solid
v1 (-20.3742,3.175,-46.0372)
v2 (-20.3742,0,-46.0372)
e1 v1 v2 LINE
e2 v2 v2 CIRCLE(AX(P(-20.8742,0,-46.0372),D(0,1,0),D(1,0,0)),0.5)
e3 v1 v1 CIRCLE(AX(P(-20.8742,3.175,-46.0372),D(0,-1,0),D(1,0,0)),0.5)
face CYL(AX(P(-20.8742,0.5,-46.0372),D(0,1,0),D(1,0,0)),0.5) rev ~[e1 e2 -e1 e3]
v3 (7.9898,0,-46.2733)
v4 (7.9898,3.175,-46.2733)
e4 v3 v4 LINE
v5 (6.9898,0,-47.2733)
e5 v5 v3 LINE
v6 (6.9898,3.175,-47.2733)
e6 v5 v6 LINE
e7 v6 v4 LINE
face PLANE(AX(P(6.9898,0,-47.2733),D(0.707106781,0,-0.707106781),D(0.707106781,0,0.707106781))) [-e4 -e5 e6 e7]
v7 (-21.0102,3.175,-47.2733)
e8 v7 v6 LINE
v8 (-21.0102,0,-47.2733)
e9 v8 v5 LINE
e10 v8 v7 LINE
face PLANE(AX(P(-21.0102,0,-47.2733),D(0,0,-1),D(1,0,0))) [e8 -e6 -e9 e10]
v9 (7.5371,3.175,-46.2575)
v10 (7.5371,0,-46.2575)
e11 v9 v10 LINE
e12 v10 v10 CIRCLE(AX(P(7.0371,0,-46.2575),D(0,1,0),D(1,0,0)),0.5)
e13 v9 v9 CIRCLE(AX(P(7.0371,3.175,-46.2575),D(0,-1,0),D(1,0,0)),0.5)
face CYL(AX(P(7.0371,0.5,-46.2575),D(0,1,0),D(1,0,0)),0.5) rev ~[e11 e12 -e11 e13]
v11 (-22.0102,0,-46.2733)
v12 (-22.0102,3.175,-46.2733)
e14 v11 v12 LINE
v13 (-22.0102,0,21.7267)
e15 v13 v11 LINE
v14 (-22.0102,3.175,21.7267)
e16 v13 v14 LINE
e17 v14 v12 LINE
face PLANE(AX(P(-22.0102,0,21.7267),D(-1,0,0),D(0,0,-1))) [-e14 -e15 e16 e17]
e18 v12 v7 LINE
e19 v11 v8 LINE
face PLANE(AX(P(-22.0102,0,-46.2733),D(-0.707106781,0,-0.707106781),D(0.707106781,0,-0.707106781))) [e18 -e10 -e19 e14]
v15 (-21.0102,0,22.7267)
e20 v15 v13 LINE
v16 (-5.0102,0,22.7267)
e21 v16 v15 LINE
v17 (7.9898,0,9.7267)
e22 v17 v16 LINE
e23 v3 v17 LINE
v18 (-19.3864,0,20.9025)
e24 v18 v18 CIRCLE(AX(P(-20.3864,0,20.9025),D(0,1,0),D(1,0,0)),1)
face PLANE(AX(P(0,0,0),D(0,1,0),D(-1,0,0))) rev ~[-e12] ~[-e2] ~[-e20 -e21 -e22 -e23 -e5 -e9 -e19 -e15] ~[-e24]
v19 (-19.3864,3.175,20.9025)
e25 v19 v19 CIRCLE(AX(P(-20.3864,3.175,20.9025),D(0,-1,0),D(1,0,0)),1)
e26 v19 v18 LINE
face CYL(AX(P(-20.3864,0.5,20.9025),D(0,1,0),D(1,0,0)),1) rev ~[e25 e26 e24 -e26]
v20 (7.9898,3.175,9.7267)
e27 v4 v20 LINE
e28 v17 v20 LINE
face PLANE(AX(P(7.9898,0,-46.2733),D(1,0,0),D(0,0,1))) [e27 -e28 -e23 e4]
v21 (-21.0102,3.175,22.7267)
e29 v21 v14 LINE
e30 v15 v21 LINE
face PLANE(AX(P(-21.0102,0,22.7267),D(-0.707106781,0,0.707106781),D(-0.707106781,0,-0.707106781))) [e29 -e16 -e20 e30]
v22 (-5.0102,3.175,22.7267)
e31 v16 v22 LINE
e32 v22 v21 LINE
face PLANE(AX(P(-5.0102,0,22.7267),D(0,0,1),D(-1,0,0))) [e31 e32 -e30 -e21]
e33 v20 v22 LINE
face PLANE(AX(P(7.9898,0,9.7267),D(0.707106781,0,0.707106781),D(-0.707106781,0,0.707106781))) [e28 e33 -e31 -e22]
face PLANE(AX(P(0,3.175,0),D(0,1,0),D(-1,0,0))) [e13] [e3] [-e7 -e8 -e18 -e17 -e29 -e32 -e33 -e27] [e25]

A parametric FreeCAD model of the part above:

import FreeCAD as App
import Part
import Sketcher
Q = App.Units.Quantity


def add_polygon(sketch, points):
    """Adds a closed chain of lines whose ends are joined by coincident constraints."""
    first, n = sketch.GeometryCount, len(points)
    for a, b in zip(points, points[1:] + points[:1]):
        sketch.addGeometry(Part.LineSegment(App.Vector(*a, 0), App.Vector(*b, 0)), False)
    for i in range(n):
        sketch.addConstraint(Sketcher.Constraint("Coincident", first + i, 2, first + (i + 1) % n, 1))

doc = App.newDocument("Part")
params = doc.addObject("Spreadsheet::Sheet", "Params")
for row, (alias, value) in enumerate([
    ("pad1_length", "3.175 mm"),
    ("sketch2_diameter", "2 mm"),
    ("sketch2_diameter2", "1 mm"),
], start=1):
    params.set(f"A{row}", alias)
    params.set(f"B{row}", "=" + value)
    params.setAlias(f"B{row}", alias)

body = doc.addObject("PartDesign::Body", "Body")

# Sketch on XZ plane
sketch1 = doc.addObject("Sketcher::SketchObject", "Sketch")
body.addObject(sketch1)
sketch1.AttachmentSupport = (doc.XZ_Plane, [""])
sketch1.MapMode = "FlatFace"
add_polygon(sketch1, [(-22, -46.3), (-22, 21.7), (-21, 22.7), (-5, 22.7), (8, 9.7), (8, -46.3), (7, -47.3), (-21, -47.3)])  # lines 0-7
sketch1.addConstraint([
    Sketcher.Constraint("Vertical", 0),
    Sketcher.Constraint("Horizontal", 2),
    Sketcher.Constraint("Vertical", 4),
    Sketcher.Constraint("Horizontal", 6),
    Sketcher.Constraint("Perpendicular", 1, 3),
    Sketcher.Constraint("Perpendicular", 3, 5),
    Sketcher.Constraint("Perpendicular", 5, 7),
    Sketcher.Constraint("Horizontal", 4, 2, 7, 2),
    Sketcher.Constraint("Vertical", 1, 2, 6, 2),
    Sketcher.Constraint("Equal", 1, 5),
    Sketcher.Constraint("DistanceX", 0, 2, 1, 2, Q("1 mm")),
    Sketcher.Constraint("DistanceX", 2, 2, 3, 2, Q("13 mm")),
    Sketcher.Constraint("DistanceX", 1, 2, 3, 2, Q("29 mm")),
    Sketcher.Constraint("DistanceY", 4, 2, 2, 2, Q("69 mm")),
    Sketcher.Constraint("DistanceX", 0, 2, -1, 1, Q("22.0102 mm")),
    Sketcher.Constraint("DistanceY", -1, 1, 0, 2, Q("21.7267 mm")),
])
pad1 = doc.addObject("PartDesign::Pad", "Pad")
body.addObject(pad1)
pad1.Profile = sketch1
pad1.setExpression("Length", "Params.pad1_length")
pad1.Reversed = True

# Sketch on XZ plane
sketch2 = doc.addObject("Sketcher::SketchObject", "Sketch001")
body.addObject(sketch2)
sketch2.AttachmentSupport = (doc.XZ_Plane, [""])
sketch2.MapMode = "FlatFace"
sketch2.AttachmentOffset = App.Placement(App.Vector(0, 0, -0.5), App.Rotation())
sketch2.addGeometry([
    Part.Circle(App.Vector(-20.4, 20.9, 0), App.Vector(0, 0, 1), 1),
    Part.Circle(App.Vector(-20.9, -46, 0), App.Vector(0, 0, 1), 0.5),
    Part.Circle(App.Vector(7, -46.3, 0), App.Vector(0, 0, 1), 0.5),
], False)
sketch2.addConstraint([
    Sketcher.Constraint("Equal", 1, 2),
    Sketcher.Constraint("Diameter", 0, Q("2 mm")),
    Sketcher.Constraint("Diameter", 1, Q("1 mm")),
    Sketcher.Constraint("DistanceY", 2, 3, 0, 3, Q("67.16 mm")),
    Sketcher.Constraint("DistanceX", -1, 1, 2, 3, Q("7.037 mm")),
    Sketcher.Constraint("DistanceX", 0, 3, -1, 1, Q("20.3864 mm")),
    Sketcher.Constraint("DistanceY", -1, 1, 0, 3, Q("20.9025 mm")),
    Sketcher.Constraint("DistanceX", 1, 3, -1, 1, Q("20.8742 mm")),
    Sketcher.Constraint("DistanceY", 1, 3, -1, 1, Q("46.0372 mm")),
])
sketch2.setExpression("Constraints[1]", "Params.sketch2_diameter")
sketch2.setExpression("Constraints[2]", "Params.sketch2_diameter2")
pocket1 = doc.addObject("PartDesign::Pocket", "Pocket")
body.addObject(pocket1)
pocket1.Profile = sketch2
pocket1.Type = "ThroughAll"
pocket1.Midplane = True

doc.recompute()
